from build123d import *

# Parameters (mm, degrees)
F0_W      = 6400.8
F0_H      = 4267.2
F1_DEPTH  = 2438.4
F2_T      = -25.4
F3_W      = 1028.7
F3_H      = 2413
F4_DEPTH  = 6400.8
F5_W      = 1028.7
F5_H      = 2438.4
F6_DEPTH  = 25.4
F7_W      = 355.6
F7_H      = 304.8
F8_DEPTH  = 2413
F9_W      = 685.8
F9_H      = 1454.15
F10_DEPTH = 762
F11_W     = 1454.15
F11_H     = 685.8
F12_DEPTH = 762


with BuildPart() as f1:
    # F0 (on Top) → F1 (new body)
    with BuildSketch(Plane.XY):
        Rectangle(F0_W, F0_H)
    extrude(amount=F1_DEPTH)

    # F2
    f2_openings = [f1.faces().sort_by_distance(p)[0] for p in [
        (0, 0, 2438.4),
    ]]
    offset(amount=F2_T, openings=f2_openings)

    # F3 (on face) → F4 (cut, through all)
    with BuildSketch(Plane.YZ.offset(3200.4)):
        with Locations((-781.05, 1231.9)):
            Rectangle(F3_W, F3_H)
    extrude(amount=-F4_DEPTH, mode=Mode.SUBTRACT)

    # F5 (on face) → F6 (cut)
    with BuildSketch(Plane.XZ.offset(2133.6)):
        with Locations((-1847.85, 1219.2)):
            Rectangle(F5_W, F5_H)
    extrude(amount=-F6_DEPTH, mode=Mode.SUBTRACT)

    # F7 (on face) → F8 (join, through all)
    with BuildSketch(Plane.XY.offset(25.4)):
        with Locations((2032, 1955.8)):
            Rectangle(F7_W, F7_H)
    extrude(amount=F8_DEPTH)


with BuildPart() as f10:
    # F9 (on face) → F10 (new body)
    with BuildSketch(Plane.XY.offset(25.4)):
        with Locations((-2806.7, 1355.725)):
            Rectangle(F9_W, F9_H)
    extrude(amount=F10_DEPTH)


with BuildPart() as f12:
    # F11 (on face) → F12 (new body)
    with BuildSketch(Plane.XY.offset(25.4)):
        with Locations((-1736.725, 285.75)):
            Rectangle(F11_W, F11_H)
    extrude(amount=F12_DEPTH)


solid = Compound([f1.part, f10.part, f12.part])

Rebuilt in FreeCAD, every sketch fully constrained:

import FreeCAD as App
import Part
import Sketcher
from FreeCAD import Vector
Q = App.Units.Quantity


def faces_at(feature, points):
    """Names of the faces that lie closest to the given points."""
    faces = feature.Shape.Faces
    near = lambda p: min(range(len(faces)), key=lambda i: faces[i].distToShape(Part.Vertex(*p))[0])
    return sorted({f"Face{near(p) + 1}" for p in points})


def add_polygon(sketch, points):
    """Adds a closed chain of lines whose ends are joined by coincident constraints."""
    first, n = sketch.GeometryCount, len(points)
    for a, b in zip(points, points[1:] + points[:1]):
        sketch.addGeometry(Part.LineSegment(App.Vector(*a, 0), App.Vector(*b, 0)), False)
    for i in range(n):
        sketch.addConstraint(Sketcher.Constraint("Coincident", first + i, 2, first + (i + 1) % n, 1))

doc = App.newDocument("Part")
body = doc.addObject("PartDesign::Body", "Body")

# Sketch on XY plane
sketch1 = body.newObject("Sketcher::SketchObject", "Sketch")
sketch1.AttachmentSupport = (doc.getObject("XY_Plane"), [""])
sketch1.MapMode = "FlatFace"
add_polygon(sketch1, [(-3200.4, 2133.6), (-3200.4, -2133.6), (3200.4, -2133.6), (3200.4, 2133.6)])  # lines 0-3
sketch1.addConstraint([
    Sketcher.Constraint("Vertical", 0),
    Sketcher.Constraint("Horizontal", 1),
    Sketcher.Constraint("Vertical", 2),
    Sketcher.Constraint("Horizontal", 3),
    Sketcher.Constraint("Symmetric", 0, 2, 2, 2, -1, 1),
    Sketcher.Constraint("DistanceX", 1, 1, 1, 2, Q("252 in")),
    Sketcher.Constraint("DistanceY", 0, 2, 0, 1, Q("168 in")),
])
pad1 = body.newObject("PartDesign::Pad", "Pad")
pad1.Profile = sketch1
pad1.Length = Q("96 in")
doc.recompute()

thickness = body.newObject("PartDesign::Thickness", "Thickness")
thickness.Base = (pad1, faces_at(pad1, [(0, 0, 2438.4)]))
thickness.Value = Q("1 in")
thickness.Reversed = True
thickness.Join = "Arc"

# Sketch on YZ plane
sketch2 = body.newObject("Sketcher::SketchObject", "Sketch001")
sketch2.AttachmentSupport = (doc.getObject("YZ_Plane"), [""])
sketch2.MapMode = "FlatFace"
sketch2.AttachmentOffset = App.Placement(Vector(0, 0, 126 * 25.4), App.Rotation())
add_polygon(sketch2, [(-1295.4, 2438.4), (-1295.4, 25.4), (-266.7, 25.4), (-266.7, 2438.4)])  # lines 0-3
sketch2.addConstraint([
    Sketcher.Constraint("Vertical", 0),
    Sketcher.Constraint("Horizontal", 1),
    Sketcher.Constraint("Vertical", 2),
    Sketcher.Constraint("Horizontal", 3),
    Sketcher.Constraint("DistanceY", 0, 2, 0, 1, Q("95 in")),
    Sketcher.Constraint("DistanceX", 1, 1, 1, 2, Q("40.5 in")),
    Sketcher.Constraint("DistanceX", 0, 2, -1, 1, Q("51 in")),
    Sketcher.Constraint("DistanceY", -1, 1, 0, 2, Q("1 in")),
])
pocket1 = body.newObject("PartDesign::Pocket", "Pocket")
pocket1.Profile = sketch2
pocket1.Type = "ThroughAll"

# Sketch on XZ plane
sketch3 = body.newObject("Sketcher::SketchObject", "Sketch002")
sketch3.AttachmentSupport = (doc.getObject("XZ_Plane"), [""])
sketch3.MapMode = "FlatFace"
sketch3.AttachmentOffset = App.Placement(Vector(0, 0, 84 * 25.4), App.Rotation())
add_polygon(sketch3, [(-2362.2, 2438.4), (-2362.2, 0), (-1333.5, 0), (-1333.5, 2438.4)])  # lines 0-3
sketch3.addConstraint([
    Sketcher.Constraint("Vertical", 0),
    Sketcher.Constraint("Horizontal", 1),
    Sketcher.Constraint("Vertical", 2),
    Sketcher.Constraint("Horizontal", 3),
    Sketcher.Constraint("PointOnObject", 0, 2, -1),
    Sketcher.Constraint("DistanceY", 0, 2, 0, 1, Q("96 in")),
    Sketcher.Constraint("DistanceX", 1, 1, 1, 2, Q("40.5 in")),
    Sketcher.Constraint("DistanceX", 0, 2, -1, 1, Q("93 in")),
])
pocket2 = body.newObject("PartDesign::Pocket", "Pocket001")
pocket2.Profile = sketch3
pocket2.Length = Q("1 in")

# Sketch on XY plane
sketch4 = body.newObject("Sketcher::SketchObject", "Sketch003")
sketch4.AttachmentSupport = (doc.getObject("XY_Plane"), [""])
sketch4.MapMode = "FlatFace"
sketch4.AttachmentOffset = App.Placement(Vector(0, 0, 1 * 25.4), App.Rotation())
add_polygon(sketch4, [(1854.2, 2108.2), (1854.2, 1803.4), (2209.8, 1803.4), (2209.8, 2108.2)])  # lines 0-3
sketch4.addConstraint([
    Sketcher.Constraint("Vertical", 0),
    Sketcher.Constraint("Horizontal", 1),
    Sketcher.Constraint("Vertical", 2),
    Sketcher.Constraint("Horizontal", 3),
    Sketcher.Constraint("DistanceX", 1, 1, 1, 2, Q("14 in")),
    Sketcher.Constraint("DistanceY", 0, 2, 0, 1, Q("12 in")),
    Sketcher.Constraint("DistanceX", -1, 1, 0, 2, Q("73 in")),
    Sketcher.Constraint("DistanceY", -1, 1, 0, 2, Q("71 in")),
])
pad2 = body.newObject("PartDesign::Pad", "Pad001")
pad2.Profile = sketch4
pad2.Length = Q("95 in")
body2 = doc.addObject("PartDesign::Body", "Body001")

# Sketch on XY plane
sketch5 = body2.newObject("Sketcher::SketchObject", "Sketch004")
sketch5.AttachmentSupport = (doc.getObject("XY_Plane001"), [""])
sketch5.MapMode = "FlatFace"
sketch5.AttachmentOffset = App.Placement(Vector(0, 0, 1 * 25.4), App.Rotation())
add_polygon(sketch5, [(-3149.6, 2082.8), (-3149.6, 628.65), (-2463.8, 628.65), (-2463.8, 2082.8)])  # lines 0-3
sketch5.addConstraint([
    Sketcher.Constraint("Vertical", 0),
    Sketcher.Constraint("Horizontal", 1),
    Sketcher.Constraint("Vertical", 2),
    Sketcher.Constraint("Horizontal", 3),
    Sketcher.Constraint("DistanceX", 1, 1, 1, 2, Q("27 in")),
    Sketcher.Constraint("DistanceX", 0, 2, -1, 1, Q("124 in")),
    Sketcher.Constraint("DistanceY", -1, 1, 2, 2, Q("82 in")),
    Sketcher.Constraint("DistanceY", 0, 2, 0, 1, Q("57.25 in")),
])
pad3 = body2.newObject("PartDesign::Pad", "Pad002")
pad3.Profile = sketch5
pad3.Length = Q("30 in")
body3 = doc.addObject("PartDesign::Body", "Body002")

# Sketch on XY plane
sketch6 = body3.newObject("Sketcher::SketchObject", "Sketch005")
sketch6.AttachmentSupport = (doc.getObject("XY_Plane002"), [""])
sketch6.MapMode = "FlatFace"
sketch6.AttachmentOffset = App.Placement(Vector(0, 0, 1 * 25.4), App.Rotation())
add_polygon(sketch6, [(-2463.8, 628.65), (-2463.8, -57.15), (-1009.65, -57.15), (-1009.65, 628.65)])  # lines 0-3
sketch6.addConstraint([
    Sketcher.Constraint("Vertical", 0),
    Sketcher.Constraint("Horizontal", 1),
    Sketcher.Constraint("Vertical", 2),
    Sketcher.Constraint("Horizontal", 3),
    Sketcher.Constraint("DistanceY", 0, 2, 0, 1, Q("27 in")),
    Sketcher.Constraint("DistanceX", 0, 2, -1, 1, Q("97 in")),
    Sketcher.Constraint("DistanceX", 1, 1, 1, 2, Q("57.25 in")),
    Sketcher.Constraint("DistanceY", 0, 2, -1, 1, Q("2.25 in")),
])
pad4 = body3.newObject("PartDesign::Pad", "Pad003")
pad4.Profile = sketch6
pad4.Length = Q("30 in")

doc.recompute()
